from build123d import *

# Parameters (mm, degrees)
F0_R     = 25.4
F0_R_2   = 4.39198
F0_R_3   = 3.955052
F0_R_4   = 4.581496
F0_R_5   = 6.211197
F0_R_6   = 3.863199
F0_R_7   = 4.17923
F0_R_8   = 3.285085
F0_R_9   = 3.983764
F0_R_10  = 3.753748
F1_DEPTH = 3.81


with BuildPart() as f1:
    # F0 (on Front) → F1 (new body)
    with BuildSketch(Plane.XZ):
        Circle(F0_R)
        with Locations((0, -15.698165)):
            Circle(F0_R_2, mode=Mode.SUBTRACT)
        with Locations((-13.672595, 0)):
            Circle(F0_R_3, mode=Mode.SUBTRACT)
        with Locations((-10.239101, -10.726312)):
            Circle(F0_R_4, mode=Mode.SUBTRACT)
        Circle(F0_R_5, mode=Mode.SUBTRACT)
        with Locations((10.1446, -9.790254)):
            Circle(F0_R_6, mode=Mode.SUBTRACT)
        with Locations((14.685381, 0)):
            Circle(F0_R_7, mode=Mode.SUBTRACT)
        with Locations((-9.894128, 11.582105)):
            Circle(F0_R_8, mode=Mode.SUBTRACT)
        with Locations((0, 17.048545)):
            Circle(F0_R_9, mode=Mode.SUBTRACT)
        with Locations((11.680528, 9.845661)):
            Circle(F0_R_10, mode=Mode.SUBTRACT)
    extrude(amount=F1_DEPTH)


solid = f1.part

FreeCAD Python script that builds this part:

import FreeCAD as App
import Part
import Sketcher

V = App.Vector
Q = App.Units.Quantity

doc = App.newDocument("Part")
params = doc.addObject("Spreadsheet::Sheet", "Params")
for row, (alias, value) in enumerate([
    ("sketch1_diameter", "2 in"),
    ("pad1_length", "0.15 in"),
], start=1):
    params.set(f"A{row}", alias)
    params.set(f"B{row}", "=" + value)
    params.setAlias(f"B{row}", alias)

body = doc.addObject("PartDesign::Body", "Body")

# Sketch on XZ plane
sketch1 = body.newObject("Sketcher::SketchObject", "Sketch")
sketch1.AttachmentSupport = (doc.getObject("XZ_Plane"), [""])
sketch1.MapMode = "FlatFace"
sketch1.addGeometry([
    Part.Circle(V(0, 0, 0), V(0, 0, 1), 25.4),  # 0
    Part.Circle(V(-10.239101, -10.726312, 0), V(0, 0, 1), 4.581496),  # 1
    Part.Circle(V(0, -15.698165, 0), V(0, 0, 1), 4.39198),  # 2
    Part.Circle(V(-13.672595, 0, 0), V(0, 0, 1), 3.955052),  # 3
    Part.Circle(V(0, 0, 0), V(0, 0, 1), 6.211197),  # 4
    Part.Circle(V(10.1446, -9.790254, 0), V(0, 0, 1), 3.863199),  # 5
    Part.Circle(V(14.685381, 0, 0), V(0, 0, 1), 4.17923),  # 6
    Part.Circle(V(-9.894128, 11.582105, 0), V(0, 0, 1), 3.285085),  # 7
    Part.Circle(V(0, 17.048545, 0), V(0, 0, 1), 3.983764),  # 8
    Part.Circle(V(11.680528, 9.845661, 0), V(0, 0, 1), 3.753748),  # 9
], False)
sketch1.addConstraint([
    Sketcher.Constraint("Coincident", 0, 3, -1, 1),
    Sketcher.Constraint("Coincident", 4, 3, -1, 1),
    Sketcher.Constraint("PointOnObject", 2, 3, -2),
    Sketcher.Constraint("PointOnObject", 3, 3, -1),
    Sketcher.Constraint("PointOnObject", 6, 3, -1),
    Sketcher.Constraint("PointOnObject", 8, 3, -2),
    Sketcher.Constraint("Diameter", 0, Q("2 in")),
    Sketcher.Constraint("Diameter", 1, 9.162992),
    Sketcher.Constraint("Diameter", 2, 8.78396),
    Sketcher.Constraint("Diameter", 6, 8.35846),
    Sketcher.Constraint("Diameter", 7, 6.57017),
    Sketcher.Constraint("Diameter", 3, 7.910104),
    Sketcher.Constraint("Diameter", 4, 12.422394),
    Sketcher.Constraint("Diameter", 5, 7.726398),
    Sketcher.Constraint("Diameter", 8, 7.967528),
    Sketcher.Constraint("Diameter", 9, 7.507496),
    Sketcher.Constraint("DistanceX", 1, 3, -1, 1, 10.239101),
    Sketcher.Constraint("DistanceX", -1, 1, 5, 3, 10.1446),
    Sketcher.Constraint("DistanceX", -1, 1, 6, 3, 14.685381),
    Sketcher.Constraint("DistanceX", -1, 1, 9, 3, 11.680528),
    Sketcher.Constraint("DistanceY", -1, 1, 9, 3, 9.845661),
    Sketcher.Constraint("DistanceY", 2, 3, 5, 3, 5.907911),
    Sketcher.Constraint("DistanceY", 1, 3, 5, 3, 0.936058),
    Sketcher.Constraint("DistanceX", 7, 3, 6, 3, 24.579509),
    Sketcher.Constraint("DistanceY", 7, 3, 8, 3, 5.46644),
    Sketcher.Constraint("DistanceY", 1, 3, -1, 1, 10.726312),
    Sketcher.Constraint("DistanceX", 3, 3, -1, 1, 13.672595),
    Sketcher.Constraint("DistanceY", -1, 1, 7, 3, 11.582105),
])
sketch1.setExpression("Constraints[6]", "Params.sketch1_diameter")
pad1 = body.newObject("PartDesign::Pad", "Pad")
pad1.Profile = sketch1
pad1.setExpression("Length", "Params.pad1_length")

doc.recompute()
